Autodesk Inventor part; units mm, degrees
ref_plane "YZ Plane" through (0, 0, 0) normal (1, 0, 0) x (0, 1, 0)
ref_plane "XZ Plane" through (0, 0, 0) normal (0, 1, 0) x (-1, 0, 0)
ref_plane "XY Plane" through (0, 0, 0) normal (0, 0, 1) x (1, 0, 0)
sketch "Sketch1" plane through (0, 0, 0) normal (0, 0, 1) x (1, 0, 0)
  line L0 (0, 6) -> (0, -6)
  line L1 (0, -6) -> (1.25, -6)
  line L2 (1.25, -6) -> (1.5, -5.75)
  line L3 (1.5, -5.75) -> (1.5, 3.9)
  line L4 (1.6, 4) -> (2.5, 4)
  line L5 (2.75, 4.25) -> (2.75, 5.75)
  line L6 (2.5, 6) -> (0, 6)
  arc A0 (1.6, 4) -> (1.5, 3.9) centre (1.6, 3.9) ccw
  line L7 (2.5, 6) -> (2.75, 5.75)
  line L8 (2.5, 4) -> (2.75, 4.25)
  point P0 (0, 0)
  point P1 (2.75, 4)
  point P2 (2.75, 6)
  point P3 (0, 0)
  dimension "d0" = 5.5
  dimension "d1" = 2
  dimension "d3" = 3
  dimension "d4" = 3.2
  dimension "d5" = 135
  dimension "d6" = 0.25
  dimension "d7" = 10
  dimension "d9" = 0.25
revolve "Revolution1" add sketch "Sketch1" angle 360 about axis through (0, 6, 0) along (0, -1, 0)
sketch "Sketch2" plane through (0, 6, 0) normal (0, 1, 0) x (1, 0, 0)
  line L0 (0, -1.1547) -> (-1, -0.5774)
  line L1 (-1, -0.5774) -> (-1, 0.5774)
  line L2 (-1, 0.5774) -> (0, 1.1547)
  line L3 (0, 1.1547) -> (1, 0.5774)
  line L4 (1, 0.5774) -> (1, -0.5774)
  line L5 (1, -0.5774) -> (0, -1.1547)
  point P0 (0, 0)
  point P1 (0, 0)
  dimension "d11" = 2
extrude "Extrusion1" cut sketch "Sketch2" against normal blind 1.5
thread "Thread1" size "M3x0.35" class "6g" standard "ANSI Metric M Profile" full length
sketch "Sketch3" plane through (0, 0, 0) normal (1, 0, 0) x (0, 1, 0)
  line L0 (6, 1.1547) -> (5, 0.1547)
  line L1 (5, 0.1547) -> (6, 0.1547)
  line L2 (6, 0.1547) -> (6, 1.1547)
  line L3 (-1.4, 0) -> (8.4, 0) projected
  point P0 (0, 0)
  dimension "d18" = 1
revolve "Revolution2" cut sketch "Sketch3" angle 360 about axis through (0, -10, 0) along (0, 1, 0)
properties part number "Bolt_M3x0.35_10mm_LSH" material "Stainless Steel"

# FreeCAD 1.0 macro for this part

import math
import FreeCAD as App
import Part
import Sketcher

V = App.Vector

doc = App.newDocument("Part")
body = doc.addObject("PartDesign::Body", "Body")

sketch1 = body.newObject("Sketcher::SketchObject", "Sketch")
sketch1.AttachmentSupport = (doc.getObject("XY_Plane"), [""])
sketch1.MapMode = "FlatFace"
sketch1.addGeometry([
    Part.LineSegment(V(2.5, 6, 0), V(0, 6, 0)),
    Part.LineSegment(V(0, 6, 0), V(0, -6, 0)),
    Part.LineSegment(V(0, -6, 0), V(1.25, -6, 0)),
    Part.LineSegment(V(1.25, -6, 0), V(1.5, -5.75, 0)),
    Part.LineSegment(V(1.5, -5.75, 0), V(1.5, 3.9, 0)),
    Part.ArcOfCircle(Part.Circle(V(1.6, 3.9, 0), V(0, 0, 1), 0.1), math.radians(90), math.radians(180)),
    Part.LineSegment(V(1.6, 4, 0), V(2.5, 4, 0)),
    Part.LineSegment(V(2.5, 4, 0), V(2.75, 4.25, 0)),
    Part.LineSegment(V(2.75, 4.25, 0), V(2.75, 5.75, 0)),
    Part.LineSegment(V(2.75, 5.75, 0), V(2.5, 6, 0)),
], False)
sketch1.addConstraint([
    Sketcher.Constraint("Coincident", 0, 2, 1, 1),
    Sketcher.Constraint("Coincident", 1, 2, 2, 1),
    Sketcher.Constraint("Coincident", 2, 2, 3, 1),
    Sketcher.Constraint("Coincident", 3, 2, 4, 1),
    Sketcher.Constraint("Tangent", 4, 2, 5, 2),
    Sketcher.Constraint("Tangent", 5, 1, 6, 1),
    Sketcher.Constraint("Coincident", 6, 2, 7, 1),
    Sketcher.Constraint("Coincident", 7, 2, 8, 1),
    Sketcher.Constraint("Coincident", 8, 2, 9, 1),
    Sketcher.Constraint("Coincident", 9, 2, 0, 1),
    Sketcher.Constraint("Horizontal", 0),
    Sketcher.Constraint("Vertical", 1),
    Sketcher.Constraint("Horizontal", 2),
    Sketcher.Constraint("Vertical", 4),
    Sketcher.Constraint("Horizontal", 6),
    Sketcher.Constraint("Vertical", 8),
    Sketcher.Constraint("Symmetric", 0, 2, 1, 2, -1, 1),
    Sketcher.Constraint("Parallel", 3, 7),
    Sketcher.Constraint("Perpendicular", 7, 9),
    Sketcher.Constraint("Vertical", 6, 2, 9, 2),
    Sketcher.Constraint("Equal", 3, 7),
    Sketcher.Constraint("Equal", 7, 9),
    Sketcher.Constraint("DistanceY", 5, 1, 0, 2, 2.0),
    Sketcher.Constraint("DistanceY", 2, 2, 5, 1, 10.0),
    Sketcher.Constraint("Radius", 5, 0.1),
    Sketcher.Constraint("DistanceX", 2, 2, 3, 2, 0.25),
    Sketcher.Constraint("DistanceX", 0, 2, 0, 1, 2.5),
    Sketcher.Constraint("DistanceX", 6, 1, 6, 2, 0.9),
])
revolution = body.newObject("PartDesign::Revolution", "Revolution")
revolution.Profile = sketch1
revolution.ReferenceAxis = (sketch1, ["V_Axis"])
revolution.Angle = 360

sketch2 = body.newObject("Sketcher::SketchObject", "Sketch001")
sketch2.AttachmentSupport = (doc.getObject("XZ_Plane"), [""])
sketch2.MapMode = "FlatFace"
sketch2.AttachmentOffset = App.Placement(V(0, 0, -6), App.Rotation())
sketch2.addGeometry([
    Part.LineSegment(V(-1, 0.5774, 0), V(0, 1.1547, 0)),
    Part.LineSegment(V(0, 1.1547, 0), V(1, 0.5774, 0)),
    Part.LineSegment(V(1, 0.5774, 0), V(1, -0.5774, 0)),
    Part.LineSegment(V(1, -0.5774, 0), V(0, -1.1547, 0)),
    Part.LineSegment(V(0, -1.1547, 0), V(-1, -0.5774, 0)),
    Part.LineSegment(V(-1, -0.5774, 0), V(-1, 0.5774, 0)),
], False)
sketch2.addConstraint([
    Sketcher.Constraint("Coincident", 0, 2, 1, 1),
    Sketcher.Constraint("Coincident", 1, 2, 2, 1),
    Sketcher.Constraint("Coincident", 2, 2, 3, 1),
    Sketcher.Constraint("Coincident", 3, 2, 4, 1),
    Sketcher.Constraint("Coincident", 4, 2, 5, 1),
    Sketcher.Constraint("Coincident", 5, 2, 0, 1),
    Sketcher.Constraint("Vertical", 2),
    Sketcher.Constraint("Vertical", 5),
    Sketcher.Constraint("Symmetric", 0, 2, 3, 2, -1, 1),
    Sketcher.Constraint("Symmetric", 1, 2, 4, 2, -1, 1),
    Sketcher.Constraint("PointOnObject", 0, 2, -2),
    Sketcher.Constraint("Parallel", 0, 3),
    Sketcher.Constraint("Horizontal", 2, 2, 4, 2),
    Sketcher.Constraint("DistanceX", 4, 2, 2, 2, 2.0),
    Sketcher.Constraint("DistanceY", 2, 2, 2, 1, 1.1548),
    Sketcher.Constraint("DistanceY", 2, 2, 0, 2, 1.732),
])
pocket1 = body.newObject("PartDesign::Pocket", "Pocket")
pocket1.Profile = sketch2
pocket1.Length = 1.5
pocket1.Reversed = True

sketch3 = body.newObject("Sketcher::SketchObject", "Sketch002")
sketch3.AttachmentSupport = (doc.getObject("YZ_Plane"), [""])
sketch3.MapMode = "FlatFace"
sketch3.addGeometry([
    Part.LineSegment(V(6, 0.1547, 0), V(6, 1.1547, 0)),
    Part.LineSegment(V(6, 1.1547, 0), V(5, 0.1547, 0)),
    Part.LineSegment(V(5, 0.1547, 0), V(6, 0.1547, 0)),
], False)
sketch3.addConstraint([
    Sketcher.Constraint("Coincident", 0, 2, 1, 1),
    Sketcher.Constraint("Coincident", 1, 2, 2, 1),
    Sketcher.Constraint("Coincident", 2, 2, 0, 1),
    Sketcher.Constraint("Vertical", 0),
    Sketcher.Constraint("Horizontal", 2),
    Sketcher.Constraint("Equal", 2, 0),
    Sketcher.Constraint("DistanceX", 2, 1, 2, 2, 1.0),
    Sketcher.Constraint("DistanceX", -1, 1, 0, 2, 6.0),
    Sketcher.Constraint("DistanceY", -1, 1, 0, 2, 1.1547),
])
groove = body.newObject("PartDesign::Groove", "Groove")
groove.Profile = sketch3
groove.ReferenceAxis = (sketch3, ["H_Axis"])
groove.Angle = 360

doc.recompute()
